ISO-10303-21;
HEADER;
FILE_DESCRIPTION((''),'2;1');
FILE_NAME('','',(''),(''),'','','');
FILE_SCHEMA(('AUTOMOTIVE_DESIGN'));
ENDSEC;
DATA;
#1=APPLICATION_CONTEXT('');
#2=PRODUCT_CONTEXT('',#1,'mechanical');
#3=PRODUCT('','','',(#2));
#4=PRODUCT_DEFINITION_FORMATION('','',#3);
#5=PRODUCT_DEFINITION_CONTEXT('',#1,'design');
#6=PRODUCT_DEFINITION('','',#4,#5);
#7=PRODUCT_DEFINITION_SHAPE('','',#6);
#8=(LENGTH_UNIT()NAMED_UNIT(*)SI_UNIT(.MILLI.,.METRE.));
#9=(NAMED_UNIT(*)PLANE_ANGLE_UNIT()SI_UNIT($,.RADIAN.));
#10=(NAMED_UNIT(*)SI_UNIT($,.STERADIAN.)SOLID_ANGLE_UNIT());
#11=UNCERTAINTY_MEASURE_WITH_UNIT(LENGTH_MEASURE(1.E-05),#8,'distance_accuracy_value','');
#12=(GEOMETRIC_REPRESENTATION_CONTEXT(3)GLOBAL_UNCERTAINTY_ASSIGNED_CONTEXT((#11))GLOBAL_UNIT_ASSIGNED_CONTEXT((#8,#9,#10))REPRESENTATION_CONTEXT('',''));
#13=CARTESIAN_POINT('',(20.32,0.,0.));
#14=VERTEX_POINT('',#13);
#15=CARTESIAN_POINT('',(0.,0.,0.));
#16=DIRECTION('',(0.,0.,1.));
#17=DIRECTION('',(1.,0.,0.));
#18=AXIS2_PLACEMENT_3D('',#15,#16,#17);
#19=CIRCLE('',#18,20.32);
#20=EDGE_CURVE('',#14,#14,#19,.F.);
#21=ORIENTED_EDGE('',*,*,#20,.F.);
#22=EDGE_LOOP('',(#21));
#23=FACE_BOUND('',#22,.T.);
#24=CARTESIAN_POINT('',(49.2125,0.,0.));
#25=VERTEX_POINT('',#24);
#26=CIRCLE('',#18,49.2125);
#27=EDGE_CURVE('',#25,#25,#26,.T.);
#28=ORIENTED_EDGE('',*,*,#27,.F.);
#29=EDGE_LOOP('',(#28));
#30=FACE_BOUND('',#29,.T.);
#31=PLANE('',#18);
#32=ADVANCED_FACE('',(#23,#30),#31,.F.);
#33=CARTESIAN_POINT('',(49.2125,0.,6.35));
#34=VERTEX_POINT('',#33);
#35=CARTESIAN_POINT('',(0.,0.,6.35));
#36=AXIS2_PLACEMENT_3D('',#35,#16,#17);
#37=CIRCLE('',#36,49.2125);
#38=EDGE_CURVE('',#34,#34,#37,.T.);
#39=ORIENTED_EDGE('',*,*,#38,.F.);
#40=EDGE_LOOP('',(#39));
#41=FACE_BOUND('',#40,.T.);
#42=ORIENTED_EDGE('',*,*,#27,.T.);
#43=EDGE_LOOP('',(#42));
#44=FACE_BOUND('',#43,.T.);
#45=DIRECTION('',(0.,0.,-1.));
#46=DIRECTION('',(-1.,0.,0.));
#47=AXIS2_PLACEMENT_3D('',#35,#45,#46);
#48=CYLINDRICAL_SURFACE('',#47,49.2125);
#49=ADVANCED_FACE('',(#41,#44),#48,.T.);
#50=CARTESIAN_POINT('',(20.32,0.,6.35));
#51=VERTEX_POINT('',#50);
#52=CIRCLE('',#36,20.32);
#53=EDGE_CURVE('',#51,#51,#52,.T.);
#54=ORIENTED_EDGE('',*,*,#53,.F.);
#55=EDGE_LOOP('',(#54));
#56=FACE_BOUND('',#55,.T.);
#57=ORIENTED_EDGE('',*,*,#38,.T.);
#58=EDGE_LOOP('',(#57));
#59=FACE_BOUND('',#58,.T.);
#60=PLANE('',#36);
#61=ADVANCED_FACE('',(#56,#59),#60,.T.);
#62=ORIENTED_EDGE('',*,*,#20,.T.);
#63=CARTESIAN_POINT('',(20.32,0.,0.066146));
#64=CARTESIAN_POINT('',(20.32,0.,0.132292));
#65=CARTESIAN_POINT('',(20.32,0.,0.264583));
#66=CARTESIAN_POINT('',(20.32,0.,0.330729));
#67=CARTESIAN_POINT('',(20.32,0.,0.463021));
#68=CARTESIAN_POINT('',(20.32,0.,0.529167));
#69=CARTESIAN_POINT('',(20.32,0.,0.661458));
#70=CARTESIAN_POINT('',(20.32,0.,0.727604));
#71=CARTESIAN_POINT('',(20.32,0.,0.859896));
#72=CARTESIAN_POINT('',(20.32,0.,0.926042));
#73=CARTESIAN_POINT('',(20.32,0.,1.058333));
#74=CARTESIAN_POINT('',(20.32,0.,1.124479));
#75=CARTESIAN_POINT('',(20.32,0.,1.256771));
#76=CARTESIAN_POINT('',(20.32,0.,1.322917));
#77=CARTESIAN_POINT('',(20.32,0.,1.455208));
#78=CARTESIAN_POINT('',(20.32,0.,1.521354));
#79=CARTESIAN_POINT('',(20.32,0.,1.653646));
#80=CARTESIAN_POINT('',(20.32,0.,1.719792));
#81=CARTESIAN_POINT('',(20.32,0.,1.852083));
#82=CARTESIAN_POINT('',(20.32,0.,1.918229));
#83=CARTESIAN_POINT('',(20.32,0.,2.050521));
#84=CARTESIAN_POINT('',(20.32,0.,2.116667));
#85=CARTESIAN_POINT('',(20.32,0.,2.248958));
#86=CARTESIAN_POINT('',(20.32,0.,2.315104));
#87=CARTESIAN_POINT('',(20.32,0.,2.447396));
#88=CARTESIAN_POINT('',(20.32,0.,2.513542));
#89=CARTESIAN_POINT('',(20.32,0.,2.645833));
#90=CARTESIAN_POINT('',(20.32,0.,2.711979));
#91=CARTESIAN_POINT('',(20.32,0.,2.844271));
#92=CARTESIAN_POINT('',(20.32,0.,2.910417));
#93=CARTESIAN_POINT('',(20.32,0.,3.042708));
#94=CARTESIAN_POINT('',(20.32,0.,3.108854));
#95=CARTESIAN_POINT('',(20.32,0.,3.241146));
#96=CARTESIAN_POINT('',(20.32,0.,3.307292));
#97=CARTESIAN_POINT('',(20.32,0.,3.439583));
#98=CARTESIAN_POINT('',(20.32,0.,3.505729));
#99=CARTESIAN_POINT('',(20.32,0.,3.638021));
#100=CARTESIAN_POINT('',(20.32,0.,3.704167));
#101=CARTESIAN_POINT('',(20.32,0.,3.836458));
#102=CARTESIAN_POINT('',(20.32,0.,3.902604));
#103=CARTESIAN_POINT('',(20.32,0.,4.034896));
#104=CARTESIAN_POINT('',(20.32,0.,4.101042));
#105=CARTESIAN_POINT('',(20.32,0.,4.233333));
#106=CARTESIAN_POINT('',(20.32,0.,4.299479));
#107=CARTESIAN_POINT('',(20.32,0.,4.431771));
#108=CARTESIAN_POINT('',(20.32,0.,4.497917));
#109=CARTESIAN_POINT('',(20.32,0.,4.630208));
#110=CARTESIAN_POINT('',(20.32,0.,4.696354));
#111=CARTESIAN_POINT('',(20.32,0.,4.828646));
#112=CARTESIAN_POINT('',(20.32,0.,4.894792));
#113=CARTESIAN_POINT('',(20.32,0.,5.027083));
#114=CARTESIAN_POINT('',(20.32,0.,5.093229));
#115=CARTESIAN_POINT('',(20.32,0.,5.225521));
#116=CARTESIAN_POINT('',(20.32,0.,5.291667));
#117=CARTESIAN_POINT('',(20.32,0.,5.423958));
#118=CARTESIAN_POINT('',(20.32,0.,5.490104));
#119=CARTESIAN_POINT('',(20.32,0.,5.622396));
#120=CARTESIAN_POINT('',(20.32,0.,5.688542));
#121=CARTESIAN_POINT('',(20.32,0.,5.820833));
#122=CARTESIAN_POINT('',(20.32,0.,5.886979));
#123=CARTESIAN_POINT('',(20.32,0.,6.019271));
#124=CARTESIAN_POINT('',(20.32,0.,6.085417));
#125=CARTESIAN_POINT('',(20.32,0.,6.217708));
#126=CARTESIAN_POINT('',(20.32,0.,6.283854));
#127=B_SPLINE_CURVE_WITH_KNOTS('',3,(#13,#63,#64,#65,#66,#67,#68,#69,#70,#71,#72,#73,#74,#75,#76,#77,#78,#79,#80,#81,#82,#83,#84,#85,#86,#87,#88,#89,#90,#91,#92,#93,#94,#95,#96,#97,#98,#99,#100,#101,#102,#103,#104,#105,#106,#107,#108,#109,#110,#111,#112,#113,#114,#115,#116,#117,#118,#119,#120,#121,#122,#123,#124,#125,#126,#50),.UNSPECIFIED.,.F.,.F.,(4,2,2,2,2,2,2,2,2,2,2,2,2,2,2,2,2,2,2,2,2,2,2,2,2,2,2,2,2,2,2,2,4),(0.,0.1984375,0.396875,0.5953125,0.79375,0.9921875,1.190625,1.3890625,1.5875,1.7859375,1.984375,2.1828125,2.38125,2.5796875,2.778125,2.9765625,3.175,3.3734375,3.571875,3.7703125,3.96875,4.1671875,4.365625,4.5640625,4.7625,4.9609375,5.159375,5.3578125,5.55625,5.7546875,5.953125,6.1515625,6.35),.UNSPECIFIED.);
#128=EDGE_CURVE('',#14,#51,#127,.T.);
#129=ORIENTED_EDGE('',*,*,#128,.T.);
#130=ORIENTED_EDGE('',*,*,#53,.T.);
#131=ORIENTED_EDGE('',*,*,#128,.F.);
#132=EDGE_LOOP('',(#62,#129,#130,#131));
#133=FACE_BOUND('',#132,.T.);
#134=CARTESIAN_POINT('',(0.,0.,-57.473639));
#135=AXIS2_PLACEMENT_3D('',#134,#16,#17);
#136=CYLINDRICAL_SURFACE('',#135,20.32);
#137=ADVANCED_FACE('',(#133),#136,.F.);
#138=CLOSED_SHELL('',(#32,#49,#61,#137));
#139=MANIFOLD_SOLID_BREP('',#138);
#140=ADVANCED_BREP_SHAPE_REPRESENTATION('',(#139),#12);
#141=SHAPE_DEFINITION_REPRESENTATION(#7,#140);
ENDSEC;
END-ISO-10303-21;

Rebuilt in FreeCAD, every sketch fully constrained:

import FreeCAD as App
import Part
import Sketcher
Q = App.Units.Quantity

doc = App.newDocument("Part")
body = doc.addObject("PartDesign::Body", "Body")

sketch1 = doc.addObject("Sketcher::SketchObject", "Sketch")
body.addObject(sketch1)
sketch1.AttachmentSupport = (doc.XY_Plane, [""])
sketch1.MapMode = "FlatFace"
sketch1.addGeometry(Part.Circle(App.Vector(0, 0, 0), App.Vector(0, 0, 1), 49.2125), False)
sketch1.addConstraint([
    Sketcher.Constraint("Coincident", 0, 3, -1, 1),
    Sketcher.Constraint("Diameter", 0, Q("3.875 in")),
])
pad1 = doc.addObject("PartDesign::Pad", "Pad")
body.addObject(pad1)
pad1.Profile = sketch1
pad1.Length = Q("0.25 in")

sketch2 = doc.addObject("Sketcher::SketchObject", "Sketch001")
body.addObject(sketch2)
sketch2.AttachmentSupport = (doc.XY_Plane, [""])
sketch2.MapMode = "FlatFace"
sketch2.AttachmentOffset = App.Placement(App.Vector(0, 0, 0.25 * 25.4), App.Rotation())
sketch2.addGeometry(Part.Circle(App.Vector(0, 0, 0), App.Vector(0, 0, 1), 20.32), False)
sketch2.addConstraint([
    Sketcher.Constraint("Coincident", 0, 3, -1, 1),
    Sketcher.Constraint("Diameter", 0, Q("1.6 in")),
])
pocket1 = doc.addObject("PartDesign::Pocket", "Pocket")
body.addObject(pocket1)
pocket1.Profile = sketch2
pocket1.Length = Q("0.25 in")

doc.recompute()
